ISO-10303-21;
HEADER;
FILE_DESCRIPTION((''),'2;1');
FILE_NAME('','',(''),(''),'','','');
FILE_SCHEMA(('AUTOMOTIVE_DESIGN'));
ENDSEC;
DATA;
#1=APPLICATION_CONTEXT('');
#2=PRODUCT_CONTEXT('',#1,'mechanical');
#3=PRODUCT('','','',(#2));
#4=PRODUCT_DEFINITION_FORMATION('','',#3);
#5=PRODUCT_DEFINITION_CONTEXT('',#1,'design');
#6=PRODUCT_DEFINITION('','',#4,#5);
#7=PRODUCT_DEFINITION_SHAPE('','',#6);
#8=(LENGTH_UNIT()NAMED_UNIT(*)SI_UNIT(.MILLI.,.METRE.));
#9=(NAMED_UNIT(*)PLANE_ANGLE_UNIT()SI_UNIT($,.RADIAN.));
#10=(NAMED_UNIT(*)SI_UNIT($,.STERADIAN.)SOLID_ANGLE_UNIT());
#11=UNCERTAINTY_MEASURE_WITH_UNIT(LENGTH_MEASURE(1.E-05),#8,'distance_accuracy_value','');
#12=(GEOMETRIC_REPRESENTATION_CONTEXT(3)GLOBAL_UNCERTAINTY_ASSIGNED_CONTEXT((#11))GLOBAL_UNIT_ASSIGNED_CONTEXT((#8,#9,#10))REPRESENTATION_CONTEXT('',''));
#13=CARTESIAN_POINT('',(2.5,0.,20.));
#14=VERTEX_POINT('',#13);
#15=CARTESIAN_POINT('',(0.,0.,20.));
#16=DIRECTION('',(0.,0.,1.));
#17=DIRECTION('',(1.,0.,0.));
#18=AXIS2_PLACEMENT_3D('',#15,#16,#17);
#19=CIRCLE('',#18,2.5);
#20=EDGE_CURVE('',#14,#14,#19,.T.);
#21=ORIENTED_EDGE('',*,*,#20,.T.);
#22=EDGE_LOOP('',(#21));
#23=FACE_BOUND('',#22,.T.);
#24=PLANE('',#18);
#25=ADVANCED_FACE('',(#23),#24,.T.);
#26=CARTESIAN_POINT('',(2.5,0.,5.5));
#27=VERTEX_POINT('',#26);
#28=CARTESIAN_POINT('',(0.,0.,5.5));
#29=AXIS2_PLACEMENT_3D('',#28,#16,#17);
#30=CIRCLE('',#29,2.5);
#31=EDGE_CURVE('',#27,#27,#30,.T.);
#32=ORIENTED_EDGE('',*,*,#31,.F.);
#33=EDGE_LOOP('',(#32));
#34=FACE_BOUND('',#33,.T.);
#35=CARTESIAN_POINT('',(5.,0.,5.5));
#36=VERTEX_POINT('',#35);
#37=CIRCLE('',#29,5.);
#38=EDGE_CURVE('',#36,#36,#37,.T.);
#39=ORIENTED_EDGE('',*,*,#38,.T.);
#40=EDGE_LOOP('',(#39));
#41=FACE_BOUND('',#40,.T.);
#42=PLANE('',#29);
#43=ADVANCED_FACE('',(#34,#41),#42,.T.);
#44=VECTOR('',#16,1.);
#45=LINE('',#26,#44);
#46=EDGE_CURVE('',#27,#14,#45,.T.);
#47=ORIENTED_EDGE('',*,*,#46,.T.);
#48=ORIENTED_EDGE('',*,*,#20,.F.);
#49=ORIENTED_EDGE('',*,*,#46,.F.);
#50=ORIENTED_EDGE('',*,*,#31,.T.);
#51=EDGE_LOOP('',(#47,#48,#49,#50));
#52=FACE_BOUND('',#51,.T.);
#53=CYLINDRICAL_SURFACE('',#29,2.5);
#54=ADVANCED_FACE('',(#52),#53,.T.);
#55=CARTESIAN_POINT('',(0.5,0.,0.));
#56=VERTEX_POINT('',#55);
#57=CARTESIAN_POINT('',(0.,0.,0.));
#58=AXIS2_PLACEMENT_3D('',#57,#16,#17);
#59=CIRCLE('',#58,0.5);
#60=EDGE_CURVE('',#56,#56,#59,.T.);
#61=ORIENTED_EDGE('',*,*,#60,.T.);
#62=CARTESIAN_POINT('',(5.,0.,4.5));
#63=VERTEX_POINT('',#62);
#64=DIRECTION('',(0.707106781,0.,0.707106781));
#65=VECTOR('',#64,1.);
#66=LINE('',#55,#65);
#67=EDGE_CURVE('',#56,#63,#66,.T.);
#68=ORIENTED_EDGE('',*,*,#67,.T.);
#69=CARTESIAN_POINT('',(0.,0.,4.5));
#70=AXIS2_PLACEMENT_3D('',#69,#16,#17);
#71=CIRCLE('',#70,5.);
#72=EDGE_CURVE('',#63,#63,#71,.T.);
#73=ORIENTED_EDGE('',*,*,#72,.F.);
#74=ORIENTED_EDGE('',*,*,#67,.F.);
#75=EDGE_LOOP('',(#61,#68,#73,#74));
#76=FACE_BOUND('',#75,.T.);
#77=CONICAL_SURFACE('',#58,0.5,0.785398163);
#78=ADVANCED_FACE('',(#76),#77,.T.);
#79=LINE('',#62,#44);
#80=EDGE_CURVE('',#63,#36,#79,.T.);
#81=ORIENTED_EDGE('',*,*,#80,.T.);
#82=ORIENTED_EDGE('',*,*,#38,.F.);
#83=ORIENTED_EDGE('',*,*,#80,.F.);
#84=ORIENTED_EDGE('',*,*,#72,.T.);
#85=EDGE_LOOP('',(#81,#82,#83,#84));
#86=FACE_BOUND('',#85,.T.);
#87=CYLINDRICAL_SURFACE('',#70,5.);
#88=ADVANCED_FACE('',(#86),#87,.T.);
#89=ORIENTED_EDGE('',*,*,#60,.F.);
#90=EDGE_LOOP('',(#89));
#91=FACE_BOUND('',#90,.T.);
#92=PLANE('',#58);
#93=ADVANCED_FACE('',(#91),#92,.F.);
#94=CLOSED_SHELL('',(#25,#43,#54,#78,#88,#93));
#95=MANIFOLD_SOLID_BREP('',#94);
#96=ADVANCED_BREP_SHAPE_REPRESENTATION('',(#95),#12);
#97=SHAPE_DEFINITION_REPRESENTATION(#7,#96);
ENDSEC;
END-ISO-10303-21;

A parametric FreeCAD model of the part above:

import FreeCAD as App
import Part
import Sketcher
from FreeCAD import Vector
Q = App.Units.Quantity

doc = App.newDocument("Part")
body = doc.addObject("PartDesign::Body", "Body")

# Sketch on XZ plane
sketch1 = body.newObject("Sketcher::SketchObject", "Sketch")
sketch1.AttachmentSupport = (doc.getObject("XZ_Plane"), [""])
sketch1.MapMode = "FlatFace"
sketch1.addGeometry([
    Part.LineSegment(Vector(0, 20, 0), Vector(0, 0, 0)),  # 0
    Part.LineSegment(Vector(0, 0, 0), Vector(0.5, 0, 0)),  # 1
    Part.LineSegment(Vector(0.5, 0, 0), Vector(5, 4.5, 0)),  # 2
    Part.LineSegment(Vector(5, 4.5, 0), Vector(5, 5.5, 0)),  # 3
    Part.LineSegment(Vector(5, 5.5, 0), Vector(2.5, 5.5, 0)),  # 4
    Part.LineSegment(Vector(2.5, 5.5, 0), Vector(2.5, 20, 0)),  # 5
    Part.LineSegment(Vector(2.5, 20, 0), Vector(0, 20, 0)),  # 6
], False)
sketch1.addConstraint([
    Sketcher.Constraint("Coincident", 0, 2, 1, 1),
    Sketcher.Constraint("Coincident", 1, 2, 2, 1),
    Sketcher.Constraint("Coincident", 2, 2, 3, 1),
    Sketcher.Constraint("Coincident", 3, 2, 4, 1),
    Sketcher.Constraint("Coincident", 4, 2, 5, 1),
    Sketcher.Constraint("Coincident", 5, 2, 6, 1),
    Sketcher.Constraint("Coincident", 6, 2, 0, 1),
    Sketcher.Constraint("Vertical", 0),
    Sketcher.Constraint("Horizontal", 1),
    Sketcher.Constraint("Vertical", 3),
    Sketcher.Constraint("Horizontal", 4),
    Sketcher.Constraint("Vertical", 5),
    Sketcher.Constraint("Horizontal", 6),
    Sketcher.Constraint("Coincident", 0, 2, -1, 1),
    Sketcher.Constraint("Equal", 4, 6),
    Sketcher.Constraint("DistanceY", 0, 2, 0, 1, 20.0),
    Sketcher.Constraint("DistanceY", 3, 1, 3, 2, 1.0),
    Sketcher.Constraint("Angle", 2, Q("45 deg")),
    Sketcher.Constraint("DistanceX", 1, 1, 1, 2, 0.5),
    Sketcher.Constraint("DistanceX", 4, 2, 4, 1, 2.5),
])
revolution = body.newObject("PartDesign::Revolution", "Revolution")
revolution.Profile = sketch1
revolution.ReferenceAxis = (sketch1, ["V_Axis"])
revolution.Angle = 360

doc.recompute()
